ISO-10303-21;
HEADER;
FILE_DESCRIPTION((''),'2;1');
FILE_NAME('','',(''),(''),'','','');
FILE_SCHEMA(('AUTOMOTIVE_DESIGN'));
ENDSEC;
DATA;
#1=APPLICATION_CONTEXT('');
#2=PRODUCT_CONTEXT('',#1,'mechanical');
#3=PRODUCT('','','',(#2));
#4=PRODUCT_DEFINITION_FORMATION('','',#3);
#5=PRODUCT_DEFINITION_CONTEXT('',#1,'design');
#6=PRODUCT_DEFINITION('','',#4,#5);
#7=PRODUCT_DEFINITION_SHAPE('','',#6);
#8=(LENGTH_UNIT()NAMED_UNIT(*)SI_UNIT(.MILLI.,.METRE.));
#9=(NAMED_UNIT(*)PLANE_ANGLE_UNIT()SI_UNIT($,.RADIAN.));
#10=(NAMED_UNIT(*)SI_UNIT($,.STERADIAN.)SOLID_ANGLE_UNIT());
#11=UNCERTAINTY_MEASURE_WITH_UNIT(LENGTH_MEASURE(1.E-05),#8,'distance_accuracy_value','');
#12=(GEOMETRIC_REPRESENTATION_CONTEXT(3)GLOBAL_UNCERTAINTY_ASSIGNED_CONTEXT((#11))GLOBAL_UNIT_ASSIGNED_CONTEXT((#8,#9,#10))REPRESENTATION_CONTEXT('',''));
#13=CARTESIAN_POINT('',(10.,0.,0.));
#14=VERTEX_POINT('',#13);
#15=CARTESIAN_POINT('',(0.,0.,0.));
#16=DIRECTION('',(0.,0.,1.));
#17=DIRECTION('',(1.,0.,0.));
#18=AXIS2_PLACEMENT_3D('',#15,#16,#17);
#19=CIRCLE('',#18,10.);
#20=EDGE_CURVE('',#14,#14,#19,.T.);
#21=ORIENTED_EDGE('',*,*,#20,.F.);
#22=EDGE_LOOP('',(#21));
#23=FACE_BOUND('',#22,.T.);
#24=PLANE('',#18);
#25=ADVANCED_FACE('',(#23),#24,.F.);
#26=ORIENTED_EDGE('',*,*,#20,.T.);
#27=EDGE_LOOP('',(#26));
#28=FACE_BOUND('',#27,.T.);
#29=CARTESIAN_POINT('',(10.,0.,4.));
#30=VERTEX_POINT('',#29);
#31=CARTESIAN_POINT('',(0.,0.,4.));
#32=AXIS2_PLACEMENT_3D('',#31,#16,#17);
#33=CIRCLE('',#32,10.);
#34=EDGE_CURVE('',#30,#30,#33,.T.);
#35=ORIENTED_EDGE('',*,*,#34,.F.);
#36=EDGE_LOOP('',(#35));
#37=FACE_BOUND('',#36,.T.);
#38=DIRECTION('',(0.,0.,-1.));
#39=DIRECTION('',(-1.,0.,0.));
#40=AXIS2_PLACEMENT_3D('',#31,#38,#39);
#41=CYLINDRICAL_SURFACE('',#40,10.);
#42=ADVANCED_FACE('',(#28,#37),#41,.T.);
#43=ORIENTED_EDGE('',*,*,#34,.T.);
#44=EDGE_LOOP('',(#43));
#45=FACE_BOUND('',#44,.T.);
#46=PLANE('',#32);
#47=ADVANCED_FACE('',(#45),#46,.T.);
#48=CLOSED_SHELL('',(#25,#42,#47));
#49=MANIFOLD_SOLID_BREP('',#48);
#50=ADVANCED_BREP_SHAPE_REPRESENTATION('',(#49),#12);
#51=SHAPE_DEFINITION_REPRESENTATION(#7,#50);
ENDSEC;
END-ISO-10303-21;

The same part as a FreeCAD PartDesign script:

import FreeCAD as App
import Part
import Sketcher

V = App.Vector

doc = App.newDocument("Part")
params = doc.addObject("Spreadsheet::Sheet", "Params")
for row, (alias, value) in enumerate([
    ("sketch1_diameter", "20 mm"),
    ("pad1_length", "4 mm"),
], start=1):
    params.set(f"A{row}", alias)
    params.set(f"B{row}", "=" + value)
    params.setAlias(f"B{row}", alias)

body = doc.addObject("PartDesign::Body", "Body")

# Sketch on XY plane
sketch1 = body.newObject("Sketcher::SketchObject", "Sketch")
sketch1.AttachmentSupport = (doc.getObject("XY_Plane"), [""])
sketch1.MapMode = "FlatFace"
sketch1.addGeometry(Part.Circle(V(0, 0, 0), V(0, 0, 1), 10), False)
sketch1.addConstraint([
    Sketcher.Constraint("Coincident", 0, 3, -1, 1),
    Sketcher.Constraint("Diameter", 0, 20.0),
])
sketch1.setExpression("Constraints[1]", "Params.sketch1_diameter")
pad1 = body.newObject("PartDesign::Pad", "Pad")
pad1.Profile = sketch1
pad1.setExpression("Length", "Params.pad1_length")

doc.recompute()
